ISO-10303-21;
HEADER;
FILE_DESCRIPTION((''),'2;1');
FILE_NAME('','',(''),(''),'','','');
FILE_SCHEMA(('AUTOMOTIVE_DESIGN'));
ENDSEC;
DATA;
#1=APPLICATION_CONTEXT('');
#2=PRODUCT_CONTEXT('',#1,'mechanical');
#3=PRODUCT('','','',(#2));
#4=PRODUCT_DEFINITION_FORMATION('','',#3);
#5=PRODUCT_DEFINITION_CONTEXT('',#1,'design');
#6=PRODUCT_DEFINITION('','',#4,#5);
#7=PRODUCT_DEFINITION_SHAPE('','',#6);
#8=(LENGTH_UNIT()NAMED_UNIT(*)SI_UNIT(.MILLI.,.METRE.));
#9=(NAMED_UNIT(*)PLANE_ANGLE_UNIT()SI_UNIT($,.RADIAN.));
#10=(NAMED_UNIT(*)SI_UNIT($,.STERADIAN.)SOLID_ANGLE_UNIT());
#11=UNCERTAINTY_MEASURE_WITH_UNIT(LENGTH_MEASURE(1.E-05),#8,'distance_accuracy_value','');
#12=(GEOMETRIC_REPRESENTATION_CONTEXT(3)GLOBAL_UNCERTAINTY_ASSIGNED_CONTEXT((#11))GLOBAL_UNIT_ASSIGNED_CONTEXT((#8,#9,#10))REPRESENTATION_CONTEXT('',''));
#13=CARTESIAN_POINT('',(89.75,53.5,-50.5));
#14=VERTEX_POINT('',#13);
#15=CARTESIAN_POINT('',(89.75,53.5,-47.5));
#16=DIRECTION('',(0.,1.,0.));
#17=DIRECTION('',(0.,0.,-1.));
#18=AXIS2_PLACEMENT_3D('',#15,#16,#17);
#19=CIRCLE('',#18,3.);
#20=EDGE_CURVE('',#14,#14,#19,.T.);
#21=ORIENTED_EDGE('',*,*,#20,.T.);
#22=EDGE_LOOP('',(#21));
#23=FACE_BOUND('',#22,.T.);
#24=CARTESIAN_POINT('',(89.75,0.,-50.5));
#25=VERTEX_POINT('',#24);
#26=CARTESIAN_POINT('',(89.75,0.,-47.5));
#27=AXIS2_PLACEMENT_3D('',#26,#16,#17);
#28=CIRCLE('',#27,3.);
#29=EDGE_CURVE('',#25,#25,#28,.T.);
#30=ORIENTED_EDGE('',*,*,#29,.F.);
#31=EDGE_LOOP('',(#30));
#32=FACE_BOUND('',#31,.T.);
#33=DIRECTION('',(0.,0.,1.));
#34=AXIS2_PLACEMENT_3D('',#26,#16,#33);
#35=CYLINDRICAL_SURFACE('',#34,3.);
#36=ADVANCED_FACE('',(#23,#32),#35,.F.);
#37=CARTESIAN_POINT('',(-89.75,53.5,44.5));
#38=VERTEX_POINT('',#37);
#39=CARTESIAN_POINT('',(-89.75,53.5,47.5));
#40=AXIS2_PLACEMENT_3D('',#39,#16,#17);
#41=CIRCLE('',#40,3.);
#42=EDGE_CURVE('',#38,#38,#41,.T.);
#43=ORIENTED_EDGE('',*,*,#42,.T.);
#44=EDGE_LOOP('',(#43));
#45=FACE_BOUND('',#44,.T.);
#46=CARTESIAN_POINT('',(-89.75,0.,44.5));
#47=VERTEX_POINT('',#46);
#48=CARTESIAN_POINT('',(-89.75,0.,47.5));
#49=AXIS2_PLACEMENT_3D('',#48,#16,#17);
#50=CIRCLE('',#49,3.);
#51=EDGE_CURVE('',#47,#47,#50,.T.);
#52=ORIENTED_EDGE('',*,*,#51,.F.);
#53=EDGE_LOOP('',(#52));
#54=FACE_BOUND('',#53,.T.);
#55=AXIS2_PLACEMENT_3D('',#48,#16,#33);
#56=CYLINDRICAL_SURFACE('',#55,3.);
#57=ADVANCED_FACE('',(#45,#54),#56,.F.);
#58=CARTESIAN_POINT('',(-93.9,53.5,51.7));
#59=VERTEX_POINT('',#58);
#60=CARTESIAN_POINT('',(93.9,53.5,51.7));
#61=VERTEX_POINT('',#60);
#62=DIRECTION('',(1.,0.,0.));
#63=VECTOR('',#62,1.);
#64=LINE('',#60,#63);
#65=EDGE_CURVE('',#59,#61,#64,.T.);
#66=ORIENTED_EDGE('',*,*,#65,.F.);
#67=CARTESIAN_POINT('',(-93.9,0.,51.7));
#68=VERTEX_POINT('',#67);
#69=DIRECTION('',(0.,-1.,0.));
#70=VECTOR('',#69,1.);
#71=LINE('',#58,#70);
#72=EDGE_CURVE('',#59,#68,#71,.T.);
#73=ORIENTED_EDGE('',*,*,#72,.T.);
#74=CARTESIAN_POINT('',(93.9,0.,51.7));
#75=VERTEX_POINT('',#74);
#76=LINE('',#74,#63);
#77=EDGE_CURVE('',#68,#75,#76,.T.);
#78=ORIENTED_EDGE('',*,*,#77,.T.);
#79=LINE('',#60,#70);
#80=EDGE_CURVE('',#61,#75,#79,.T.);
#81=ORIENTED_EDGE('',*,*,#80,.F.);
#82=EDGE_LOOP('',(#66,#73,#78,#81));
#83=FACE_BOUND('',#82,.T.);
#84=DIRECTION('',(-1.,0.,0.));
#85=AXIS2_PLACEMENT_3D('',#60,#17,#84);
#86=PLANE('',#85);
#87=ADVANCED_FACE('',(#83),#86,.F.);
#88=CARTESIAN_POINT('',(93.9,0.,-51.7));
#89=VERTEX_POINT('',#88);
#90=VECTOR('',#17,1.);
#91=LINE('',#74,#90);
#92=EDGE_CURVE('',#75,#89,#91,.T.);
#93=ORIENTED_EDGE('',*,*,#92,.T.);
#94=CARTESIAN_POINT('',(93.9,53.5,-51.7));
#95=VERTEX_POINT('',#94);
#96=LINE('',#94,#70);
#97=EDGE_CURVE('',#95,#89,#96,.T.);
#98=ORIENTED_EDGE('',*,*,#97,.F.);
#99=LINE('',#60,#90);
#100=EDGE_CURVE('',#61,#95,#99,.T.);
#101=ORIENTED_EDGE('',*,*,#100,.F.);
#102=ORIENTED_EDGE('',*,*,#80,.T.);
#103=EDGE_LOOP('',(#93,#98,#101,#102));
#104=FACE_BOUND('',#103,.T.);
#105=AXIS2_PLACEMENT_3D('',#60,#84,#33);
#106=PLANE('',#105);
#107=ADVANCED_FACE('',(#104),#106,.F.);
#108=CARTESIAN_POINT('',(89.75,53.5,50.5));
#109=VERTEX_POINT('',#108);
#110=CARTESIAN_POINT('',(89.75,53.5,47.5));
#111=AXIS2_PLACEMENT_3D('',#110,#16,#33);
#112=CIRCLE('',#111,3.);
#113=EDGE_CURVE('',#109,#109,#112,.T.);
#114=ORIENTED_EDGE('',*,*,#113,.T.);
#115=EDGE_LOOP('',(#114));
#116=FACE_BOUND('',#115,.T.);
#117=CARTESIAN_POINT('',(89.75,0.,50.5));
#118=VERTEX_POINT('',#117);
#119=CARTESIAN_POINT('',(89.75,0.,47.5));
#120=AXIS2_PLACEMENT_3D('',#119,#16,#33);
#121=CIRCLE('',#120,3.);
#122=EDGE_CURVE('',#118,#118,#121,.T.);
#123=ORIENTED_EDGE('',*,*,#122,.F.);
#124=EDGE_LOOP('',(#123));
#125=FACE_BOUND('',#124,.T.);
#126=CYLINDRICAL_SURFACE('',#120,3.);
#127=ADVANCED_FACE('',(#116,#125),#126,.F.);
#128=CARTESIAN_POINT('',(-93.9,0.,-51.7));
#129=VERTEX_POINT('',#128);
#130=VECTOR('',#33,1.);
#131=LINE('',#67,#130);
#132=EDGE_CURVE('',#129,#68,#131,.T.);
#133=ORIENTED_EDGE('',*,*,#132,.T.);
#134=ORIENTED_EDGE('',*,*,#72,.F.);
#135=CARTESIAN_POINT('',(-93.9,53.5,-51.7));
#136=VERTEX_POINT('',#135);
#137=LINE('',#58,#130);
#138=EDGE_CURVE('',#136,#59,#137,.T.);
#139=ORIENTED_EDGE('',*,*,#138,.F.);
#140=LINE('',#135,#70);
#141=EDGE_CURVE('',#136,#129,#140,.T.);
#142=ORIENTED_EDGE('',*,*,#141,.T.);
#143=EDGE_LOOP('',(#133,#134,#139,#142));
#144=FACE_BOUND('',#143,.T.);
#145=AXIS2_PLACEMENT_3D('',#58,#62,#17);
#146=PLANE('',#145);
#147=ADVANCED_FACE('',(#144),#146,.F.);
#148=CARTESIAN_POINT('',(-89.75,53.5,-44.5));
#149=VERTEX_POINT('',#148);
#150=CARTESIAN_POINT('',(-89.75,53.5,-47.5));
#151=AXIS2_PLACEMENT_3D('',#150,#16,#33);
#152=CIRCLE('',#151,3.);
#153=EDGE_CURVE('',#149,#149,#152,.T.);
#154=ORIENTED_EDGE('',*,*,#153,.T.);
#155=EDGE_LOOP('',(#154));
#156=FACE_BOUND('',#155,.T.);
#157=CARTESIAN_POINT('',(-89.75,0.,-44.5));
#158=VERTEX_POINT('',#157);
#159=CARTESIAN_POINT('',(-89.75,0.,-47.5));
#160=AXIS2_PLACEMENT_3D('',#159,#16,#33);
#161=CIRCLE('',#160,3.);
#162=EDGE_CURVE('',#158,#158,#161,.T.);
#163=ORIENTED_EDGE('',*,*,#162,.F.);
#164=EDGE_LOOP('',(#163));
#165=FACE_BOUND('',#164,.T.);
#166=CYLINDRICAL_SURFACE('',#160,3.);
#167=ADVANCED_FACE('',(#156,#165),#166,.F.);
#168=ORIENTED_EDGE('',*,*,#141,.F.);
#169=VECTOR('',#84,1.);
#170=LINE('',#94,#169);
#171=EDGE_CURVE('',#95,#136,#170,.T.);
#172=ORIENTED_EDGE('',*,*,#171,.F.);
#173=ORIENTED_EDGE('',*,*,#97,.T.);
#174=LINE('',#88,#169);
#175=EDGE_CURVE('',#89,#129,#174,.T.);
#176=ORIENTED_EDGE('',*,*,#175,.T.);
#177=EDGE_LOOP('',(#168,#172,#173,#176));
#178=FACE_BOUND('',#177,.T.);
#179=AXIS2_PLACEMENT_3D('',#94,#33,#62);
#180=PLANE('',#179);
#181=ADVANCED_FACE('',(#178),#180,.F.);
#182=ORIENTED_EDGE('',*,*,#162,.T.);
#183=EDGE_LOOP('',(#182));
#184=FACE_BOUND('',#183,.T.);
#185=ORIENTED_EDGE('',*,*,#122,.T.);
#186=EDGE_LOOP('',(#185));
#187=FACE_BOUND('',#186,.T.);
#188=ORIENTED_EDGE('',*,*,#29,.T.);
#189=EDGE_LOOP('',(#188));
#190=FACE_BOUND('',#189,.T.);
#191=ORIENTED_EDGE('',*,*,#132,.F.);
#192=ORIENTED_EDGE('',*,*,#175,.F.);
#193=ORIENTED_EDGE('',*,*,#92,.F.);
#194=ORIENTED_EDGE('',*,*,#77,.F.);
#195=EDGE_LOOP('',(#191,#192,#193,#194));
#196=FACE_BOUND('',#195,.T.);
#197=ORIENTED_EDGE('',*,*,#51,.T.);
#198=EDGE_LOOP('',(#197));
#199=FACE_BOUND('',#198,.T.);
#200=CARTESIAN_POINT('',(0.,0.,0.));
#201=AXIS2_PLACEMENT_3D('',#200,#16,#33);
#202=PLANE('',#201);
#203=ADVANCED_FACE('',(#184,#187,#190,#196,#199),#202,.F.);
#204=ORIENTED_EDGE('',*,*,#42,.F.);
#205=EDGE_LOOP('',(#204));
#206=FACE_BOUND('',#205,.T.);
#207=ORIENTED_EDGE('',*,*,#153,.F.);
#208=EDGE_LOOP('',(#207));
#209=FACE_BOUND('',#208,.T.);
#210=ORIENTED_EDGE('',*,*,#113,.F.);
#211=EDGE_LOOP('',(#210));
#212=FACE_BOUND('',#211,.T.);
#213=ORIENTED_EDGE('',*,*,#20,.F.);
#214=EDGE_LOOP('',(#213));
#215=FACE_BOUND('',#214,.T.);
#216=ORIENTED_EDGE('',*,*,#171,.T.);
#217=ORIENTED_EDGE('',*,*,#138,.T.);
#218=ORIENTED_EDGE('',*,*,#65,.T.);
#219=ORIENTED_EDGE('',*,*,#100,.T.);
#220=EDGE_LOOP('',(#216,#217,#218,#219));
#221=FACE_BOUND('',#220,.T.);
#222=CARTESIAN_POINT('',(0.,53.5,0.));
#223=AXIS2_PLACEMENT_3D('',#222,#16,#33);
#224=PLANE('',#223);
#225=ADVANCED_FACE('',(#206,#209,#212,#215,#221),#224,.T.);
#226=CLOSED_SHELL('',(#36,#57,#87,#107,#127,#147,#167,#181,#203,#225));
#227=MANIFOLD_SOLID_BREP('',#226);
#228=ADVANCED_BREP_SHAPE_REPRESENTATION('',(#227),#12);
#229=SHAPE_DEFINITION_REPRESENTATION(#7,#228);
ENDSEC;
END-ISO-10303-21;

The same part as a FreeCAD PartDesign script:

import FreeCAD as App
import Part
import Sketcher
Q = App.Units.Quantity

doc = App.newDocument("Part")
body = doc.addObject("PartDesign::Body", "Body")

# Sketch on XZ plane
sketch1 = body.newObject("Sketcher::SketchObject", "Sketch")
sketch1.AttachmentSupport = (doc.getObject("XZ_Plane"), [""])
sketch1.MapMode = "FlatFace"
sketch1.addGeometry([
    Part.LineSegment(App.Vector(-94, -52, 0), App.Vector(-94, 52, 0)),
    Part.LineSegment(App.Vector(-94, 52, 0), App.Vector(94, 52, 0)),
    Part.LineSegment(App.Vector(94, 52, 0), App.Vector(94, -52, 0)),
    Part.LineSegment(App.Vector(94, -52, 0), App.Vector(-94, -52, 0)),
], False)
sketch1.addConstraint([
    Sketcher.Constraint("Coincident", 0, 2, 1, 1),
    Sketcher.Constraint("Coincident", 1, 2, 2, 1),
    Sketcher.Constraint("Coincident", 2, 2, 3, 1),
    Sketcher.Constraint("Coincident", 3, 2, 0, 1),
    Sketcher.Constraint("Vertical", 0),
    Sketcher.Constraint("Horizontal", 1),
    Sketcher.Constraint("Vertical", 2),
    Sketcher.Constraint("Horizontal", 3),
    Sketcher.Constraint("Symmetric", 0, 2, 2, 2, -1, 1),
    Sketcher.Constraint("DistanceX", 1, 1, 1, 2, Q("187.8 mm")),
    Sketcher.Constraint("DistanceY", 0, 1, 0, 2, Q("103.4 mm")),
])
pad1 = body.newObject("PartDesign::Pad", "Pad")
pad1.Profile = sketch1
pad1.Length = 53.5
pad1.Reversed = True

# Sketch on XZ plane
sketch2 = body.newObject("Sketcher::SketchObject", "Sketch001")
sketch2.AttachmentSupport = (doc.getObject("XZ_Plane"), [""])
sketch2.MapMode = "FlatFace"
sketch2.AttachmentOffset = App.Placement(App.Vector(0, 0, -53.5), App.Rotation())
sketch2.addGeometry([
    Part.Circle(App.Vector(-89.8, -47.5, 0), App.Vector(0, 0, 1), 3),
    Part.Circle(App.Vector(89.8, -47.5, 0), App.Vector(0, 0, 1), 3),
    Part.Circle(App.Vector(89.8, 47.5, 0), App.Vector(0, 0, 1), 3),
    Part.Circle(App.Vector(-89.8, 47.5, 0), App.Vector(0, 0, 1), 3),
], False)
sketch2.addConstraint([
    Sketcher.Constraint("Equal", 0, 1),
    Sketcher.Constraint("Equal", 1, 2),
    Sketcher.Constraint("Equal", 2, 3),
    Sketcher.Constraint("Symmetric", 0, 3, 2, 3, -1, 1),
    Sketcher.Constraint("Symmetric", 1, 3, 3, 3, -1, 1),
    Sketcher.Constraint("Symmetric", 0, 3, 1, 3, -2),
    Sketcher.Constraint("Diameter", 0, Q("6 mm")),
    Sketcher.Constraint("DistanceY", 1, 3, 2, 3, Q("95 mm")),
    Sketcher.Constraint("DistanceX", 0, 3, 1, 3, Q("179.5 mm")),
])
pocket1 = body.newObject("PartDesign::Pocket", "Pocket")
pocket1.Profile = sketch2
pocket1.Type = "ThroughAll"
pocket1.Reversed = True

doc.recompute()
